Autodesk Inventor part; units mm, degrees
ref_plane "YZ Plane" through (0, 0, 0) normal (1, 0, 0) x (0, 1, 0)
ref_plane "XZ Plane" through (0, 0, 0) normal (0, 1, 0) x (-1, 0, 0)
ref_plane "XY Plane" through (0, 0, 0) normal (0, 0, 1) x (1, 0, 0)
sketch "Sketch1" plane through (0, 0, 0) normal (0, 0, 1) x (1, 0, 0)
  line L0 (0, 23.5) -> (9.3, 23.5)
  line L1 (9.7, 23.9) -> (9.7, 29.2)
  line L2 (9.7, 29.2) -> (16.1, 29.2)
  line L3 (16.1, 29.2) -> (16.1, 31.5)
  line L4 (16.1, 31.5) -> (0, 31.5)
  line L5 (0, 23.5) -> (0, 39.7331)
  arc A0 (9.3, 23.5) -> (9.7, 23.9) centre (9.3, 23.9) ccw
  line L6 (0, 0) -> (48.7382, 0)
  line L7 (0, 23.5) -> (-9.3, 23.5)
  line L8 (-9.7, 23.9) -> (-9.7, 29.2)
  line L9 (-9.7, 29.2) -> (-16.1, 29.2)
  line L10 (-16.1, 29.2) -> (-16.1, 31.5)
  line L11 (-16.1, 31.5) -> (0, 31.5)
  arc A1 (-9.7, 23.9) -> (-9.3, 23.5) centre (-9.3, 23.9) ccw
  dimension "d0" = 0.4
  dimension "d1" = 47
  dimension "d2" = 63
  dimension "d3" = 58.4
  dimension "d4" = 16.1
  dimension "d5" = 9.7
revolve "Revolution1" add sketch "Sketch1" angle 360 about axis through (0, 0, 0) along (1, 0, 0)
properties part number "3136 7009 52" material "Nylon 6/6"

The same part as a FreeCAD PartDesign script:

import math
import FreeCAD as App
import Part
import Sketcher

doc = App.newDocument("Part")
body = doc.addObject("PartDesign::Body", "Body")

sketch1 = body.newObject("Sketcher::SketchObject", "Sketch")
sketch1.AttachmentSupport = (doc.getObject("XY_Plane"), [""])
sketch1.MapMode = "FlatFace"
sketch1.addGeometry([
    Part.LineSegment(App.Vector(16.1, 31.5, 0), App.Vector(-16.1, 31.5, 0)),
    Part.LineSegment(App.Vector(-16.1, 31.5, 0), App.Vector(-16.1, 29.2, 0)),
    Part.LineSegment(App.Vector(-16.1, 29.2, 0), App.Vector(-9.7, 29.2, 0)),
    Part.LineSegment(App.Vector(-9.7, 29.2, 0), App.Vector(-9.7, 23.9, 0)),
    Part.ArcOfCircle(Part.Circle(App.Vector(-9.3, 23.9, 0), App.Vector(0, 0, 1), 0.4), math.radians(180), math.radians(270)),
    Part.LineSegment(App.Vector(-9.3, 23.5, 0), App.Vector(9.3, 23.5, 0)),
    Part.ArcOfCircle(Part.Circle(App.Vector(9.3, 23.9, 0), App.Vector(0, 0, 1), 0.4), math.radians(-90), math.radians(0)),
    Part.LineSegment(App.Vector(9.7, 23.9, 0), App.Vector(9.7, 29.2, 0)),
    Part.LineSegment(App.Vector(9.7, 29.2, 0), App.Vector(16.1, 29.2, 0)),
    Part.LineSegment(App.Vector(16.1, 29.2, 0), App.Vector(16.1, 31.5, 0)),
], False)
sketch1.addConstraint([
    Sketcher.Constraint("Coincident", 0, 2, 1, 1),
    Sketcher.Constraint("Coincident", 1, 2, 2, 1),
    Sketcher.Constraint("Coincident", 2, 2, 3, 1),
    Sketcher.Constraint("Tangent", 3, 2, 4, 1),
    Sketcher.Constraint("Tangent", 4, 2, 5, 1),
    Sketcher.Constraint("Tangent", 5, 2, 6, 1),
    Sketcher.Constraint("Tangent", 6, 2, 7, 1),
    Sketcher.Constraint("Coincident", 7, 2, 8, 1),
    Sketcher.Constraint("Coincident", 8, 2, 9, 1),
    Sketcher.Constraint("Coincident", 9, 2, 0, 1),
    Sketcher.Constraint("Horizontal", 0),
    Sketcher.Constraint("Vertical", 1),
    Sketcher.Constraint("Horizontal", 2),
    Sketcher.Constraint("Vertical", 3),
    Sketcher.Constraint("Horizontal", 5),
    Sketcher.Constraint("Vertical", 7),
    Sketcher.Constraint("Horizontal", 8),
    Sketcher.Constraint("Vertical", 9),
    Sketcher.Constraint("Equal", 4, 6),
    Sketcher.Constraint("Symmetric", 2, 2, 7, 2, -2),
    Sketcher.Constraint("Equal", 2, 8),
    Sketcher.Constraint("Radius", 4, 0.4),
    Sketcher.Constraint("DistanceX", 0, 2, -1, 1, 16.1),
    Sketcher.Constraint("DistanceX", 2, 2, -1, 1, 9.7),
    Sketcher.Constraint("DistanceY", 1, 2, 1, 1, 2.3),
    Sketcher.Constraint("DistanceY", 3, 2, 3, 1, 5.3),
    Sketcher.Constraint("DistanceY", -1, 1, 4, 3, 23.9),
])
revolution = body.newObject("PartDesign::Revolution", "Revolution")
revolution.Profile = sketch1
revolution.ReferenceAxis = (sketch1, ["H_Axis"])
revolution.Angle = 360

doc.recompute()
